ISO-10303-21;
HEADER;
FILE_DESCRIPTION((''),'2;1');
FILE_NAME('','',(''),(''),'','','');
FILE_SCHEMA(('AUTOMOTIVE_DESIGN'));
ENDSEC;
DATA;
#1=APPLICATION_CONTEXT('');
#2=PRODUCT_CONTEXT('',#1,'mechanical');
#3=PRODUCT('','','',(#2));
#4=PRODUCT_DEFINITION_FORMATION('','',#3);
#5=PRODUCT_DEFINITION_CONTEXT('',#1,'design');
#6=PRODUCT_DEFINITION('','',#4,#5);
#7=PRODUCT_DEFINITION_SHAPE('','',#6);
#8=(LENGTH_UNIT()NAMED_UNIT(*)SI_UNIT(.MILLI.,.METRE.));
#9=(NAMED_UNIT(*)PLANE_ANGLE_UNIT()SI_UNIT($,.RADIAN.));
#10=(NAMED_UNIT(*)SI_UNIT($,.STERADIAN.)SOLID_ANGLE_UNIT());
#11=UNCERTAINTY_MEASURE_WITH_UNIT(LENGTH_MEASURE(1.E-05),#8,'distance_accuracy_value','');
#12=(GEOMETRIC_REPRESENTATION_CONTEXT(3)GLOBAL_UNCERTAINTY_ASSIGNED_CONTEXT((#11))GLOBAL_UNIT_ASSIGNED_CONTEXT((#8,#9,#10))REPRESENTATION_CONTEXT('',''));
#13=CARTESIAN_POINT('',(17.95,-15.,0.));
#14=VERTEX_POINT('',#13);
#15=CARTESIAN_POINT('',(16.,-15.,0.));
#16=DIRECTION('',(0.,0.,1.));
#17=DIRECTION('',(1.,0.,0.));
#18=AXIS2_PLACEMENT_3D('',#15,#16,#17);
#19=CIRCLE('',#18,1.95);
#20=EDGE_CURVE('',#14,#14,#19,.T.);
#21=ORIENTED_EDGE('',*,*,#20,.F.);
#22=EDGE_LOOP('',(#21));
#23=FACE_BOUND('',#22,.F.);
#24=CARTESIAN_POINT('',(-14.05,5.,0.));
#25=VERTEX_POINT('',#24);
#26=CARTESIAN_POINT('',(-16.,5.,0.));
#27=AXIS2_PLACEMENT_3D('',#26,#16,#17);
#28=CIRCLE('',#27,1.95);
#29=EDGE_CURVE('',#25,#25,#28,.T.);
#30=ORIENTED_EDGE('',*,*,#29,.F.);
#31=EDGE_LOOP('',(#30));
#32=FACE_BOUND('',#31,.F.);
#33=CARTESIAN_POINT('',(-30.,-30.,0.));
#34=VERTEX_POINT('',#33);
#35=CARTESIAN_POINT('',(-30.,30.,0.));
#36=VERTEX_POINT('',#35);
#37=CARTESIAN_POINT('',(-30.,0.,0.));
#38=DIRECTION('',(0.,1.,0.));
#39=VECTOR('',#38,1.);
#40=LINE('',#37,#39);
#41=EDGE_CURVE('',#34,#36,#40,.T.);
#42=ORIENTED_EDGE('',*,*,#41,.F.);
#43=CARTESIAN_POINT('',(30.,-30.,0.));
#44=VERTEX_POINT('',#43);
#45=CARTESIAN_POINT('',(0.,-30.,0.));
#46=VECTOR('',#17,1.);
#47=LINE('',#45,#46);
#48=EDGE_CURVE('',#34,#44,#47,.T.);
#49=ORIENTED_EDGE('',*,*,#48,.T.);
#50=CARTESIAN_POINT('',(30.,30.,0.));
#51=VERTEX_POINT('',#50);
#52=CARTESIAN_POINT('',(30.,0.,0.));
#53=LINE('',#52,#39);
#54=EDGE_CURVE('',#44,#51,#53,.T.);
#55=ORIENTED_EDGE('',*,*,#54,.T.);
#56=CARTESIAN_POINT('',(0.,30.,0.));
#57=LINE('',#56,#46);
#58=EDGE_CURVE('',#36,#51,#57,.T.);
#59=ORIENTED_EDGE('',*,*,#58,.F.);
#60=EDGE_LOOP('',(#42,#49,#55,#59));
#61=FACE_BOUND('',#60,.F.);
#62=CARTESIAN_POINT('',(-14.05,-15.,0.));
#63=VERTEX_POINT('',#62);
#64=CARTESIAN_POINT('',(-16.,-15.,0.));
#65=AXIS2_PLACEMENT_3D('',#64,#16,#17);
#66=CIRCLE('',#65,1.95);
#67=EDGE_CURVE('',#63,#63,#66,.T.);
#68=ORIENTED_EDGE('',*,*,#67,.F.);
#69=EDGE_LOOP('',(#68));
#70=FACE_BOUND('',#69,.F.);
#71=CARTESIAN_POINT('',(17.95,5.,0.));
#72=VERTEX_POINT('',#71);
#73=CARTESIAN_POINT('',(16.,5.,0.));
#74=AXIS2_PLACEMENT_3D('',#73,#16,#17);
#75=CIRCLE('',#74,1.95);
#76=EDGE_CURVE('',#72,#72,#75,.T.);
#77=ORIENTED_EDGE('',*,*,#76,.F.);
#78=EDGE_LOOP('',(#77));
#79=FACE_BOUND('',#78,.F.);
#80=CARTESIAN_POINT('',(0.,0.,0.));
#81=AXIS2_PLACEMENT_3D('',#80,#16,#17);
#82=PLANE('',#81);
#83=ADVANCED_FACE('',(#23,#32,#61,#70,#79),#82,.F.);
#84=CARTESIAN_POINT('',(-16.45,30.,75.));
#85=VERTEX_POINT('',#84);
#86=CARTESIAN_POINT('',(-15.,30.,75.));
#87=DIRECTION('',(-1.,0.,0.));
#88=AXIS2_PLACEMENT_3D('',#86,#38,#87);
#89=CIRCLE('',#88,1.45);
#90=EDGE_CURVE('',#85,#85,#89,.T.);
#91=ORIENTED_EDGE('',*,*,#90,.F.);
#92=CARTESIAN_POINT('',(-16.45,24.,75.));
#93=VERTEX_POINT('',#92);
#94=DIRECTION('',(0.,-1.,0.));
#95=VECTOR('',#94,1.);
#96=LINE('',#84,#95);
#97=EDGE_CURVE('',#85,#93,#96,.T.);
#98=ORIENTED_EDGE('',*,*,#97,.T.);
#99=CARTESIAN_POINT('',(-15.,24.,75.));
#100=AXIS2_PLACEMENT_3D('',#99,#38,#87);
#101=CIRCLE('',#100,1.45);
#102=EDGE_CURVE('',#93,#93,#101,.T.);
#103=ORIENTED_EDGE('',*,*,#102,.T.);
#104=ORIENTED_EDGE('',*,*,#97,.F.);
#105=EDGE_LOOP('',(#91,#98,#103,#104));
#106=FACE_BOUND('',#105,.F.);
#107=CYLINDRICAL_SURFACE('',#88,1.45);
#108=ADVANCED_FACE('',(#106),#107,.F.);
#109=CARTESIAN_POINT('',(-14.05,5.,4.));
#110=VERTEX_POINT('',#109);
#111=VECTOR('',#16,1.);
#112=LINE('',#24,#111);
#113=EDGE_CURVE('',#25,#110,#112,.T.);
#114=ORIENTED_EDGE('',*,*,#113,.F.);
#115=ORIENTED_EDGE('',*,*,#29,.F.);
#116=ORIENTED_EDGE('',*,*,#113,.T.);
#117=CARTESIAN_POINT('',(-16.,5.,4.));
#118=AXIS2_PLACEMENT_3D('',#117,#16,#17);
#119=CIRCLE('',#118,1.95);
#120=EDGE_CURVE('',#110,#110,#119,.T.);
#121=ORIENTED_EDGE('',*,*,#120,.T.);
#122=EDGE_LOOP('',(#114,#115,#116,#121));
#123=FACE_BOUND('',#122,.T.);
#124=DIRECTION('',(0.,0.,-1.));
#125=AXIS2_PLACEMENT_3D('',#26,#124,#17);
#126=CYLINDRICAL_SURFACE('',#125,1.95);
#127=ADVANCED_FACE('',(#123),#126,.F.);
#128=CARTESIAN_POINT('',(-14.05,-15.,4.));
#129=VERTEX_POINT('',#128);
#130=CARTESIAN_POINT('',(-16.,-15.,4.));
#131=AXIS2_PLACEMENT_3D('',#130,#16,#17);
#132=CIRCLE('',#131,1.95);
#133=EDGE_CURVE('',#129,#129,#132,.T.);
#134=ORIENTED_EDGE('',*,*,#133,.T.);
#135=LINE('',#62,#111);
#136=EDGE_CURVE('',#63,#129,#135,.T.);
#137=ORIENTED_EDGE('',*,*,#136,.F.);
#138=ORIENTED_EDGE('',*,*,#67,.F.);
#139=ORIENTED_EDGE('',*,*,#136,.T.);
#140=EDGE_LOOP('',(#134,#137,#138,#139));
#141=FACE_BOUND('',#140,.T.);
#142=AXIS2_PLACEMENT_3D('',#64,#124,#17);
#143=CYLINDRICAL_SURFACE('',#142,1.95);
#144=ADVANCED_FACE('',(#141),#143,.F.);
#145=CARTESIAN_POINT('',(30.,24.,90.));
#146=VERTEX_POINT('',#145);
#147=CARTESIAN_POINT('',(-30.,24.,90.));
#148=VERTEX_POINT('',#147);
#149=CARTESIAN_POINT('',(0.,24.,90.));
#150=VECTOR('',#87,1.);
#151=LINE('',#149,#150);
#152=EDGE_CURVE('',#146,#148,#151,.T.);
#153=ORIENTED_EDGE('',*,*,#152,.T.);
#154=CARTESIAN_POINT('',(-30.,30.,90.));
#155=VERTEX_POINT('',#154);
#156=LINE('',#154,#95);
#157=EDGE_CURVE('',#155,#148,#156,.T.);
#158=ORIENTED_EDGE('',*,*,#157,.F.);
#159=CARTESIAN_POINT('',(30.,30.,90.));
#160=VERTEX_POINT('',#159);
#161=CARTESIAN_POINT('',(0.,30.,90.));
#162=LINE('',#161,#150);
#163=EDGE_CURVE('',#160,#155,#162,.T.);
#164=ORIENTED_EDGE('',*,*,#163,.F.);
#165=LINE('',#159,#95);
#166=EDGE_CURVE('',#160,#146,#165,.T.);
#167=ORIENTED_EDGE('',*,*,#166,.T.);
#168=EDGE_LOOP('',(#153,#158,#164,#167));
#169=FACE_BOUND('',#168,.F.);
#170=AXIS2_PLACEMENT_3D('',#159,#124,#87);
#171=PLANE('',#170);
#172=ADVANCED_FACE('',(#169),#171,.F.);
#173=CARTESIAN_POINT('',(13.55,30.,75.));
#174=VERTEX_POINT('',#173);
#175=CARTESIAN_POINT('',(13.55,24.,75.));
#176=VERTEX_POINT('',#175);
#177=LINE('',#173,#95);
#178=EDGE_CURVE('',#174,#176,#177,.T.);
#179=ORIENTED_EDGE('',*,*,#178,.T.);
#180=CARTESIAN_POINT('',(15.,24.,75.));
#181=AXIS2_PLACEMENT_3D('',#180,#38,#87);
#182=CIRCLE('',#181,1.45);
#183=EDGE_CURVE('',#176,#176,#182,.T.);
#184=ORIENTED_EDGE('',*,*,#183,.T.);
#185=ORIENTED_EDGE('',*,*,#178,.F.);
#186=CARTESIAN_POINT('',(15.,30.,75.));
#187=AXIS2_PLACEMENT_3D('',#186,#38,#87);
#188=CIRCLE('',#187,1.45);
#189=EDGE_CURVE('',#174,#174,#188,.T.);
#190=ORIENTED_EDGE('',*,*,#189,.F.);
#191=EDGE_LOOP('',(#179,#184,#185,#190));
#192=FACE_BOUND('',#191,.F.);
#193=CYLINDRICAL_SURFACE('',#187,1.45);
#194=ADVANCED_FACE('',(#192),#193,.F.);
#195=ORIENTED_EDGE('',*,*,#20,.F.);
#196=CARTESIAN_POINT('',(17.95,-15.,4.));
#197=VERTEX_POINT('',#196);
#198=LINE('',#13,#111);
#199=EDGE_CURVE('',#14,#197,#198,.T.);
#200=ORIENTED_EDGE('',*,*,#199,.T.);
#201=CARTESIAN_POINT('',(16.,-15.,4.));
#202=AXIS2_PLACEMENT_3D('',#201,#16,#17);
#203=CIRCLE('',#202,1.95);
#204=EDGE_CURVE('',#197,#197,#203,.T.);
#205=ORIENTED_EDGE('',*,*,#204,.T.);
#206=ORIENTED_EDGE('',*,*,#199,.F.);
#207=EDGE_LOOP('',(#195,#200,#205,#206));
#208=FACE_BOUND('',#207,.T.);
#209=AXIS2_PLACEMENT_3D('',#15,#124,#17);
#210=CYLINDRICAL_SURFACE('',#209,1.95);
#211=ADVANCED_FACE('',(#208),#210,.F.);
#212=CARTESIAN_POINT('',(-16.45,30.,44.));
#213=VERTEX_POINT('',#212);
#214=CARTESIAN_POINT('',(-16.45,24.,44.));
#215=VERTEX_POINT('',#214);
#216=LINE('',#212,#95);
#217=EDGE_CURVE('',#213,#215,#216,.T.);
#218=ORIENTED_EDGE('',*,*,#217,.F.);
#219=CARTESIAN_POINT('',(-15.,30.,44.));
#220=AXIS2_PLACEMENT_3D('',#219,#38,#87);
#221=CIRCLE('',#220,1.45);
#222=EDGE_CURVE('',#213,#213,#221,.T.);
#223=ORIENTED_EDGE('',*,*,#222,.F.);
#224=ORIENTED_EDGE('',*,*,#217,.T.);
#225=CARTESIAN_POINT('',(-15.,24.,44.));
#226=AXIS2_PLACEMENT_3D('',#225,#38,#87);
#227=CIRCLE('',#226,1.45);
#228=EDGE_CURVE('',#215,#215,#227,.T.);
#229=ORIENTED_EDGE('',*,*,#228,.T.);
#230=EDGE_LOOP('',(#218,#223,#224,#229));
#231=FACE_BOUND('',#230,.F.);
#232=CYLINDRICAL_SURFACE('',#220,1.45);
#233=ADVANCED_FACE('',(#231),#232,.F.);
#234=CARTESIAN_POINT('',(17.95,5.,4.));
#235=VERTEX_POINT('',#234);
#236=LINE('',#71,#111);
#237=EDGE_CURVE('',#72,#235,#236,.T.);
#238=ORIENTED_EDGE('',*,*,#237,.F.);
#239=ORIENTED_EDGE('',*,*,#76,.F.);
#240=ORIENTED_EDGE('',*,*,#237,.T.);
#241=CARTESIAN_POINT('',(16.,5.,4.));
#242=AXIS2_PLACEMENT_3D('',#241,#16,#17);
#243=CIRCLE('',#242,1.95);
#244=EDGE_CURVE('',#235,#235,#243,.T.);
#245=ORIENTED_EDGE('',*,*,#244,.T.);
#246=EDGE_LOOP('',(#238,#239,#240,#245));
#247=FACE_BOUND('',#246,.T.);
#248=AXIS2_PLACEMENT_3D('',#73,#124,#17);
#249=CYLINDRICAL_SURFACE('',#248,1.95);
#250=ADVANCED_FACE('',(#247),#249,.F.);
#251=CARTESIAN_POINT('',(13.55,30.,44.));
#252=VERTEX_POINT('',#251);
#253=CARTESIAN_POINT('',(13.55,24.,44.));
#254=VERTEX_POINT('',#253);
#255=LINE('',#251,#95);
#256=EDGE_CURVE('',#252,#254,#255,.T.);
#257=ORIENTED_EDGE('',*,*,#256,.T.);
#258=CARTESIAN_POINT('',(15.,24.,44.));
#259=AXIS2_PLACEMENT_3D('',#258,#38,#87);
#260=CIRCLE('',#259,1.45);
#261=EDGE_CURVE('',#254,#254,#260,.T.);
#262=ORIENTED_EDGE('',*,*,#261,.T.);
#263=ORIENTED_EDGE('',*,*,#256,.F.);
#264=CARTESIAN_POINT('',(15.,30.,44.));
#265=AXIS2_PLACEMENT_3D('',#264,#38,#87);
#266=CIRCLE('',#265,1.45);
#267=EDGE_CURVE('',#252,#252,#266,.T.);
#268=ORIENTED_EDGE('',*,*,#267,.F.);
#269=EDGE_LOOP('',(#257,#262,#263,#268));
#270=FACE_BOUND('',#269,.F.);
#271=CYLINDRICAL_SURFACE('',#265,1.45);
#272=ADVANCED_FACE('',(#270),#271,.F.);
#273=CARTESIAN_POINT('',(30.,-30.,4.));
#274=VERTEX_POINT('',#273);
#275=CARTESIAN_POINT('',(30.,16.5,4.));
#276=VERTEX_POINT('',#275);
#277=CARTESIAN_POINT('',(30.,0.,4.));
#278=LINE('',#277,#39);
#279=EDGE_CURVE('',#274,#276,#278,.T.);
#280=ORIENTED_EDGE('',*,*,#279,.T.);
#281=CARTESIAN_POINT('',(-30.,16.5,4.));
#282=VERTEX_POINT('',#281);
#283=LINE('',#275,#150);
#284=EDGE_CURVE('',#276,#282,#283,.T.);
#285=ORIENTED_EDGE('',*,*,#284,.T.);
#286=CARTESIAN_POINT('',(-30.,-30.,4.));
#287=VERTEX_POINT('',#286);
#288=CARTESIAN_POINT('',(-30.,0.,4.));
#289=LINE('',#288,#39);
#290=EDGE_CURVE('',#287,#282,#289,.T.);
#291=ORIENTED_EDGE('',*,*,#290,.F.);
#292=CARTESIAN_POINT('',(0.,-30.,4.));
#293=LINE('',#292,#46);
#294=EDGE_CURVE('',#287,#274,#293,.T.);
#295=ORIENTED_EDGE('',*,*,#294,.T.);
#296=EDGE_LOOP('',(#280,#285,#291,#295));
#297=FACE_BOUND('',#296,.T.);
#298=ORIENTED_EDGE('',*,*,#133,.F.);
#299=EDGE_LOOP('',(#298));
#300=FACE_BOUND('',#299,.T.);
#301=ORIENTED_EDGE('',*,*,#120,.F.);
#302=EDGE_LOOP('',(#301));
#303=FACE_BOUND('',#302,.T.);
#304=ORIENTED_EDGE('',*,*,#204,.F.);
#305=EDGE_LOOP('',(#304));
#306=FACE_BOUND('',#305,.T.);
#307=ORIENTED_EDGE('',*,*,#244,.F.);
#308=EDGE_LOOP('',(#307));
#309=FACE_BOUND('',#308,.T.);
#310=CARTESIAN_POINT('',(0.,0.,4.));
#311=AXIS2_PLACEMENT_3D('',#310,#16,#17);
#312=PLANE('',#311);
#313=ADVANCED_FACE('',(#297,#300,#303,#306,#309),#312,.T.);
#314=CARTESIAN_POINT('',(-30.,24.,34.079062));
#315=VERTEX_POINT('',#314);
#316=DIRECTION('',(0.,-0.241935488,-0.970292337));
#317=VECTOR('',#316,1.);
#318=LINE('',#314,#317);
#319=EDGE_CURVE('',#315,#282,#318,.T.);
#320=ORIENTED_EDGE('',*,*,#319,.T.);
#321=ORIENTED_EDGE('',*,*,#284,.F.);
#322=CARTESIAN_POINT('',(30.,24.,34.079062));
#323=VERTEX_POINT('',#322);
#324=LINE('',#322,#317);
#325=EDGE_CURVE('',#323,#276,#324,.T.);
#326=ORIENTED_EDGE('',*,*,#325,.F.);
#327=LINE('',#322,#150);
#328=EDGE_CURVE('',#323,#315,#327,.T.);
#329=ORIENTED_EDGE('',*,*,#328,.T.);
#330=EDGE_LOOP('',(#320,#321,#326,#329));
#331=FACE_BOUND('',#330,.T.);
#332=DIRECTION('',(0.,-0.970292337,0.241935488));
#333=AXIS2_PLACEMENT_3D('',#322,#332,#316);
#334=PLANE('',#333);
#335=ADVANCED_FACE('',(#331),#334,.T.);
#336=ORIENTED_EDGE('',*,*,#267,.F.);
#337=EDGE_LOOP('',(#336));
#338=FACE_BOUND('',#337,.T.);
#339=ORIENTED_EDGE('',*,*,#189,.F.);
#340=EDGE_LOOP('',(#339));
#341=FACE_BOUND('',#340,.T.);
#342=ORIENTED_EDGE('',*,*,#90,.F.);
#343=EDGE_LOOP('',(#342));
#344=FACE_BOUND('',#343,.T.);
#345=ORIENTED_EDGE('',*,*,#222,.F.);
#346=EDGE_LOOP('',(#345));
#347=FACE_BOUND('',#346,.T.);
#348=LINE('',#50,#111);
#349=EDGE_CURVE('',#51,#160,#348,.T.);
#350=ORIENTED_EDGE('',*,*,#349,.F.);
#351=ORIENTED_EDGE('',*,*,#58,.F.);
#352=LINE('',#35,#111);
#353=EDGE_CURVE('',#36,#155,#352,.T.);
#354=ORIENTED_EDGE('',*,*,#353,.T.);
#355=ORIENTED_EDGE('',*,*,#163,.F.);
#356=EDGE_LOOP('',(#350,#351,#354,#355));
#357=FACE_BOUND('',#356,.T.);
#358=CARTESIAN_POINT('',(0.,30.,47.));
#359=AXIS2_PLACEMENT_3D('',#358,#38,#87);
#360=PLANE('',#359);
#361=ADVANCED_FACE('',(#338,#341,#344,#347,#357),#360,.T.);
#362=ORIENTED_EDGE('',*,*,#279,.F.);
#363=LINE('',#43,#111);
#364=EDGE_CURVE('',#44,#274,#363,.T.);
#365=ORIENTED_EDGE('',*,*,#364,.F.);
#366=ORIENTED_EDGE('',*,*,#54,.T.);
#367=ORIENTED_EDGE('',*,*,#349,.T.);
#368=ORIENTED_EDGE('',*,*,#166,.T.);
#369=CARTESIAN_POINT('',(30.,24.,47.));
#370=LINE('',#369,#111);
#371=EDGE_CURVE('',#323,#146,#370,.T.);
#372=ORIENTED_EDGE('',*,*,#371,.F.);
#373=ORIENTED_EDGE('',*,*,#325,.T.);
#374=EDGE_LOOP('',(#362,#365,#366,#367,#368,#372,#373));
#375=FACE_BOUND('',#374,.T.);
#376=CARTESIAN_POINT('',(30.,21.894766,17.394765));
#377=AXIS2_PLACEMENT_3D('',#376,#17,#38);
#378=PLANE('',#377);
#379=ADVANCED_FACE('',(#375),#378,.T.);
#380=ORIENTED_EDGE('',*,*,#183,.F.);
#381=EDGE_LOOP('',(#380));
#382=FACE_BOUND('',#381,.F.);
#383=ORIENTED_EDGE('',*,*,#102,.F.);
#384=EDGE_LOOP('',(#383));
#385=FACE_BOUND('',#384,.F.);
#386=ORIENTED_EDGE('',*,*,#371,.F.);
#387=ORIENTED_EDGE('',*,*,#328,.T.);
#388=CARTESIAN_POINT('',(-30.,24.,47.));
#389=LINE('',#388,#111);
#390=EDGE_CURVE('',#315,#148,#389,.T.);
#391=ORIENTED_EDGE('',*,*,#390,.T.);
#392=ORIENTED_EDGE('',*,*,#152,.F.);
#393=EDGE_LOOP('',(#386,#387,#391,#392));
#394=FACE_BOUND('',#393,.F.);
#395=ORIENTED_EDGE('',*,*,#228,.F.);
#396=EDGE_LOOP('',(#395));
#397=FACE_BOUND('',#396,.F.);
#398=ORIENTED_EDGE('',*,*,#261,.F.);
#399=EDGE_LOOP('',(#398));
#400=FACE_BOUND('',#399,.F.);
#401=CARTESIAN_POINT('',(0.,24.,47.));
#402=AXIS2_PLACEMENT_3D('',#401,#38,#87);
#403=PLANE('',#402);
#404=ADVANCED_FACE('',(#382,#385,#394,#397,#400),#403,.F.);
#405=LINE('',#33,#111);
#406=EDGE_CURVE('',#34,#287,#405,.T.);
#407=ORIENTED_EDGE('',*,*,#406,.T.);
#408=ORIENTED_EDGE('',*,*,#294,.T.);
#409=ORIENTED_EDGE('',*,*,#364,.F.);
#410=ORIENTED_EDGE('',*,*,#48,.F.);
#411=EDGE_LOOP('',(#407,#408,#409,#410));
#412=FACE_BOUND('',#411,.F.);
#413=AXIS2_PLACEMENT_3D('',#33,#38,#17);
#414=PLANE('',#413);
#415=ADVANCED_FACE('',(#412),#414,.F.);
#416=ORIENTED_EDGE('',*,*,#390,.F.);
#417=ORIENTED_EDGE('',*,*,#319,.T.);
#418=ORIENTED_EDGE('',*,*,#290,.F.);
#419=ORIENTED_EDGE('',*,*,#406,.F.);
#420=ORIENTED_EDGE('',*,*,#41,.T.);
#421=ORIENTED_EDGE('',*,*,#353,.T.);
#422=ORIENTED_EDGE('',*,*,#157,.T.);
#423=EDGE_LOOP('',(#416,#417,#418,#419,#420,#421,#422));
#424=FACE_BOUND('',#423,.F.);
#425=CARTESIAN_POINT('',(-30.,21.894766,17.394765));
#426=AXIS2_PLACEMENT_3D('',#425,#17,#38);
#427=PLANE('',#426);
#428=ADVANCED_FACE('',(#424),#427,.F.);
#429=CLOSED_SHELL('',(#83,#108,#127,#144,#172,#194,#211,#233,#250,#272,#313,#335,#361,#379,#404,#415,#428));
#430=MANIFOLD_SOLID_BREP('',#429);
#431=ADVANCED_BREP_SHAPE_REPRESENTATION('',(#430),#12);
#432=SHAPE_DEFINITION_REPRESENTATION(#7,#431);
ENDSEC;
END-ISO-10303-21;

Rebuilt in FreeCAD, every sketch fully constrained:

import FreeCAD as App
import Part
import Sketcher

doc = App.newDocument("Part")
body = doc.addObject("PartDesign::Body", "Body")

# Sketch on XY plane
sketch1 = body.newObject("Sketcher::SketchObject", "Sketch")
sketch1.AttachmentSupport = (doc.getObject("XY_Plane"), [""])
sketch1.MapMode = "FlatFace"
sketch1.addGeometry([
    Part.LineSegment(App.Vector(-30, 30, 0), App.Vector(-30, -30, 0)),  # 0
    Part.LineSegment(App.Vector(-30, -30, 0), App.Vector(30, -30, 0)),  # 1
    Part.LineSegment(App.Vector(30, -30, 0), App.Vector(30, 30, 0)),  # 2
    Part.LineSegment(App.Vector(30, 30, 0), App.Vector(-30, 30, 0)),  # 3
    Part.Circle(App.Vector(-16, -15, 0), App.Vector(0, 0, 1), 1.95),  # 4
    Part.Circle(App.Vector(16, -15, 0), App.Vector(0, 0, 1), 1.95),  # 5
    Part.Circle(App.Vector(-16, 5, 0), App.Vector(0, 0, 1), 1.95),  # 6
    Part.Circle(App.Vector(16, 5, 0), App.Vector(0, 0, 1), 1.95),  # 7
], False)
sketch1.addConstraint([
    Sketcher.Constraint("Coincident", 0, 2, 1, 1),
    Sketcher.Constraint("Coincident", 1, 2, 2, 1),
    Sketcher.Constraint("Coincident", 2, 2, 3, 1),
    Sketcher.Constraint("Coincident", 3, 2, 0, 1),
    Sketcher.Constraint("Vertical", 0),
    Sketcher.Constraint("Horizontal", 1),
    Sketcher.Constraint("Vertical", 2),
    Sketcher.Constraint("Horizontal", 3),
    Sketcher.Constraint("Equal", 4, 5),
    Sketcher.Constraint("Equal", 5, 6),
    Sketcher.Constraint("Equal", 6, 7),
    Sketcher.Constraint("Symmetric", 0, 2, 2, 2, -1, 1),
    Sketcher.Constraint("Symmetric", 4, 3, 5, 3, -2),
    Sketcher.Constraint("Symmetric", 6, 3, 7, 3, -2),
    Sketcher.Constraint("Vertical", 4, 3, 6, 3),
    Sketcher.Constraint("Equal", 3, 0),
    Sketcher.Constraint("Diameter", 4, 3.9),
    Sketcher.Constraint("DistanceX", 1, 1, 1, 2, 60.0),
    Sketcher.Constraint("DistanceX", 4, 3, -1, 1, 16.0),
    Sketcher.Constraint("DistanceY", 4, 3, -1, 1, 15.0),
    Sketcher.Constraint("DistanceY", -1, 1, 6, 3, 5.0),
])
pad1 = body.newObject("PartDesign::Pad", "Pad")
pad1.Profile = sketch1
pad1.Length = 4

# Sketch on XZ plane
sketch2 = body.newObject("Sketcher::SketchObject", "Sketch001")
sketch2.AttachmentSupport = (doc.getObject("XZ_Plane"), [""])
sketch2.MapMode = "FlatFace"
sketch2.AttachmentOffset = App.Placement(App.Vector(0, 0, -30), App.Rotation())
sketch2.addGeometry([
    Part.LineSegment(App.Vector(30, 90, 0), App.Vector(30, 4, 0)),  # 0
    Part.LineSegment(App.Vector(30, 4, 0), App.Vector(-30, 4, 0)),  # 1
    Part.LineSegment(App.Vector(-30, 4, 0), App.Vector(-30, 90, 0)),  # 2
    Part.LineSegment(App.Vector(-30, 90, 0), App.Vector(30, 90, 0)),  # 3
    Part.Circle(App.Vector(15, 44, 0), App.Vector(0, 0, 1), 1.45),  # 4
    Part.Circle(App.Vector(-15, 44, 0), App.Vector(0, 0, 1), 1.45),  # 5
    Part.Circle(App.Vector(15, 75, 0), App.Vector(0, 0, 1), 1.45),  # 6
    Part.Circle(App.Vector(-15, 75, 0), App.Vector(0, 0, 1), 1.45),  # 7
], False)
sketch2.addConstraint([
    Sketcher.Constraint("Coincident", 0, 2, 1, 1),
    Sketcher.Constraint("Coincident", 1, 2, 2, 1),
    Sketcher.Constraint("Coincident", 2, 2, 3, 1),
    Sketcher.Constraint("Coincident", 3, 2, 0, 1),
    Sketcher.Constraint("Vertical", 0),
    Sketcher.Constraint("Horizontal", 1),
    Sketcher.Constraint("Vertical", 2),
    Sketcher.Constraint("Horizontal", 3),
    Sketcher.Constraint("Equal", 4, 5),
    Sketcher.Constraint("Equal", 5, 6),
    Sketcher.Constraint("Equal", 6, 7),
    Sketcher.Constraint("Symmetric", 4, 3, 5, 3, -2),
    Sketcher.Constraint("Symmetric", 6, 3, 7, 3, -2),
    Sketcher.Constraint("Vertical", 4, 3, 6, 3),
    Sketcher.Constraint("Diameter", 4, 2.9),
    Sketcher.Constraint("DistanceX", 1, 2, 1, 1, 60.0),
    Sketcher.Constraint("DistanceY", 0, 2, 0, 1, 86.0),
    Sketcher.Constraint("DistanceX", -1, 1, 4, 3, 15.0),
    Sketcher.Constraint("DistanceY", -1, 1, 4, 3, 44.0),
    Sketcher.Constraint("DistanceY", -1, 1, 6, 3, 75.0),
    Sketcher.Constraint("DistanceX", -1, 1, 0, 2, 30.0),
    Sketcher.Constraint("DistanceY", -1, 1, 0, 2, 4.0),
])
pad2 = body.newObject("PartDesign::Pad", "Pad001")
pad2.Profile = sketch2
pad2.Length = 6

# Sketch on YZ plane
sketch3 = body.newObject("Sketcher::SketchObject", "Sketch002")
sketch3.AttachmentSupport = (doc.getObject("YZ_Plane"), [""])
sketch3.MapMode = "FlatFace"
sketch3.AttachmentOffset = App.Placement(App.Vector(0, 0, 30), App.Rotation())
sketch3.addGeometry([
    Part.LineSegment(App.Vector(24, 34.079062, 0), App.Vector(16.5, 4, 0)),
    Part.LineSegment(App.Vector(16.5, 4, 0), App.Vector(24, 4, 0)),
    Part.LineSegment(App.Vector(24, 4, 0), App.Vector(24, 34.079062, 0)),
], False)
sketch3.addConstraint([
    Sketcher.Constraint("Coincident", 0, 2, 1, 1),
    Sketcher.Constraint("Coincident", 1, 2, 2, 1),
    Sketcher.Constraint("Coincident", 2, 2, 0, 1),
    Sketcher.Constraint("Horizontal", 1),
    Sketcher.Constraint("Vertical", 2),
    Sketcher.Constraint("Distance", 0, 31.0),
    Sketcher.Constraint("DistanceX", 1, 1, 1, 2, 7.5),
    Sketcher.Constraint("DistanceY", -1, 1, 0, 2, 4.0),
    Sketcher.Constraint("DistanceX", -1, 1, 1, 2, 24.0),
])
pad3 = body.newObject("PartDesign::Pad", "Pad002")
pad3.Profile = sketch3
pad3.Length = 60
pad3.Reversed = True

doc.recompute()
